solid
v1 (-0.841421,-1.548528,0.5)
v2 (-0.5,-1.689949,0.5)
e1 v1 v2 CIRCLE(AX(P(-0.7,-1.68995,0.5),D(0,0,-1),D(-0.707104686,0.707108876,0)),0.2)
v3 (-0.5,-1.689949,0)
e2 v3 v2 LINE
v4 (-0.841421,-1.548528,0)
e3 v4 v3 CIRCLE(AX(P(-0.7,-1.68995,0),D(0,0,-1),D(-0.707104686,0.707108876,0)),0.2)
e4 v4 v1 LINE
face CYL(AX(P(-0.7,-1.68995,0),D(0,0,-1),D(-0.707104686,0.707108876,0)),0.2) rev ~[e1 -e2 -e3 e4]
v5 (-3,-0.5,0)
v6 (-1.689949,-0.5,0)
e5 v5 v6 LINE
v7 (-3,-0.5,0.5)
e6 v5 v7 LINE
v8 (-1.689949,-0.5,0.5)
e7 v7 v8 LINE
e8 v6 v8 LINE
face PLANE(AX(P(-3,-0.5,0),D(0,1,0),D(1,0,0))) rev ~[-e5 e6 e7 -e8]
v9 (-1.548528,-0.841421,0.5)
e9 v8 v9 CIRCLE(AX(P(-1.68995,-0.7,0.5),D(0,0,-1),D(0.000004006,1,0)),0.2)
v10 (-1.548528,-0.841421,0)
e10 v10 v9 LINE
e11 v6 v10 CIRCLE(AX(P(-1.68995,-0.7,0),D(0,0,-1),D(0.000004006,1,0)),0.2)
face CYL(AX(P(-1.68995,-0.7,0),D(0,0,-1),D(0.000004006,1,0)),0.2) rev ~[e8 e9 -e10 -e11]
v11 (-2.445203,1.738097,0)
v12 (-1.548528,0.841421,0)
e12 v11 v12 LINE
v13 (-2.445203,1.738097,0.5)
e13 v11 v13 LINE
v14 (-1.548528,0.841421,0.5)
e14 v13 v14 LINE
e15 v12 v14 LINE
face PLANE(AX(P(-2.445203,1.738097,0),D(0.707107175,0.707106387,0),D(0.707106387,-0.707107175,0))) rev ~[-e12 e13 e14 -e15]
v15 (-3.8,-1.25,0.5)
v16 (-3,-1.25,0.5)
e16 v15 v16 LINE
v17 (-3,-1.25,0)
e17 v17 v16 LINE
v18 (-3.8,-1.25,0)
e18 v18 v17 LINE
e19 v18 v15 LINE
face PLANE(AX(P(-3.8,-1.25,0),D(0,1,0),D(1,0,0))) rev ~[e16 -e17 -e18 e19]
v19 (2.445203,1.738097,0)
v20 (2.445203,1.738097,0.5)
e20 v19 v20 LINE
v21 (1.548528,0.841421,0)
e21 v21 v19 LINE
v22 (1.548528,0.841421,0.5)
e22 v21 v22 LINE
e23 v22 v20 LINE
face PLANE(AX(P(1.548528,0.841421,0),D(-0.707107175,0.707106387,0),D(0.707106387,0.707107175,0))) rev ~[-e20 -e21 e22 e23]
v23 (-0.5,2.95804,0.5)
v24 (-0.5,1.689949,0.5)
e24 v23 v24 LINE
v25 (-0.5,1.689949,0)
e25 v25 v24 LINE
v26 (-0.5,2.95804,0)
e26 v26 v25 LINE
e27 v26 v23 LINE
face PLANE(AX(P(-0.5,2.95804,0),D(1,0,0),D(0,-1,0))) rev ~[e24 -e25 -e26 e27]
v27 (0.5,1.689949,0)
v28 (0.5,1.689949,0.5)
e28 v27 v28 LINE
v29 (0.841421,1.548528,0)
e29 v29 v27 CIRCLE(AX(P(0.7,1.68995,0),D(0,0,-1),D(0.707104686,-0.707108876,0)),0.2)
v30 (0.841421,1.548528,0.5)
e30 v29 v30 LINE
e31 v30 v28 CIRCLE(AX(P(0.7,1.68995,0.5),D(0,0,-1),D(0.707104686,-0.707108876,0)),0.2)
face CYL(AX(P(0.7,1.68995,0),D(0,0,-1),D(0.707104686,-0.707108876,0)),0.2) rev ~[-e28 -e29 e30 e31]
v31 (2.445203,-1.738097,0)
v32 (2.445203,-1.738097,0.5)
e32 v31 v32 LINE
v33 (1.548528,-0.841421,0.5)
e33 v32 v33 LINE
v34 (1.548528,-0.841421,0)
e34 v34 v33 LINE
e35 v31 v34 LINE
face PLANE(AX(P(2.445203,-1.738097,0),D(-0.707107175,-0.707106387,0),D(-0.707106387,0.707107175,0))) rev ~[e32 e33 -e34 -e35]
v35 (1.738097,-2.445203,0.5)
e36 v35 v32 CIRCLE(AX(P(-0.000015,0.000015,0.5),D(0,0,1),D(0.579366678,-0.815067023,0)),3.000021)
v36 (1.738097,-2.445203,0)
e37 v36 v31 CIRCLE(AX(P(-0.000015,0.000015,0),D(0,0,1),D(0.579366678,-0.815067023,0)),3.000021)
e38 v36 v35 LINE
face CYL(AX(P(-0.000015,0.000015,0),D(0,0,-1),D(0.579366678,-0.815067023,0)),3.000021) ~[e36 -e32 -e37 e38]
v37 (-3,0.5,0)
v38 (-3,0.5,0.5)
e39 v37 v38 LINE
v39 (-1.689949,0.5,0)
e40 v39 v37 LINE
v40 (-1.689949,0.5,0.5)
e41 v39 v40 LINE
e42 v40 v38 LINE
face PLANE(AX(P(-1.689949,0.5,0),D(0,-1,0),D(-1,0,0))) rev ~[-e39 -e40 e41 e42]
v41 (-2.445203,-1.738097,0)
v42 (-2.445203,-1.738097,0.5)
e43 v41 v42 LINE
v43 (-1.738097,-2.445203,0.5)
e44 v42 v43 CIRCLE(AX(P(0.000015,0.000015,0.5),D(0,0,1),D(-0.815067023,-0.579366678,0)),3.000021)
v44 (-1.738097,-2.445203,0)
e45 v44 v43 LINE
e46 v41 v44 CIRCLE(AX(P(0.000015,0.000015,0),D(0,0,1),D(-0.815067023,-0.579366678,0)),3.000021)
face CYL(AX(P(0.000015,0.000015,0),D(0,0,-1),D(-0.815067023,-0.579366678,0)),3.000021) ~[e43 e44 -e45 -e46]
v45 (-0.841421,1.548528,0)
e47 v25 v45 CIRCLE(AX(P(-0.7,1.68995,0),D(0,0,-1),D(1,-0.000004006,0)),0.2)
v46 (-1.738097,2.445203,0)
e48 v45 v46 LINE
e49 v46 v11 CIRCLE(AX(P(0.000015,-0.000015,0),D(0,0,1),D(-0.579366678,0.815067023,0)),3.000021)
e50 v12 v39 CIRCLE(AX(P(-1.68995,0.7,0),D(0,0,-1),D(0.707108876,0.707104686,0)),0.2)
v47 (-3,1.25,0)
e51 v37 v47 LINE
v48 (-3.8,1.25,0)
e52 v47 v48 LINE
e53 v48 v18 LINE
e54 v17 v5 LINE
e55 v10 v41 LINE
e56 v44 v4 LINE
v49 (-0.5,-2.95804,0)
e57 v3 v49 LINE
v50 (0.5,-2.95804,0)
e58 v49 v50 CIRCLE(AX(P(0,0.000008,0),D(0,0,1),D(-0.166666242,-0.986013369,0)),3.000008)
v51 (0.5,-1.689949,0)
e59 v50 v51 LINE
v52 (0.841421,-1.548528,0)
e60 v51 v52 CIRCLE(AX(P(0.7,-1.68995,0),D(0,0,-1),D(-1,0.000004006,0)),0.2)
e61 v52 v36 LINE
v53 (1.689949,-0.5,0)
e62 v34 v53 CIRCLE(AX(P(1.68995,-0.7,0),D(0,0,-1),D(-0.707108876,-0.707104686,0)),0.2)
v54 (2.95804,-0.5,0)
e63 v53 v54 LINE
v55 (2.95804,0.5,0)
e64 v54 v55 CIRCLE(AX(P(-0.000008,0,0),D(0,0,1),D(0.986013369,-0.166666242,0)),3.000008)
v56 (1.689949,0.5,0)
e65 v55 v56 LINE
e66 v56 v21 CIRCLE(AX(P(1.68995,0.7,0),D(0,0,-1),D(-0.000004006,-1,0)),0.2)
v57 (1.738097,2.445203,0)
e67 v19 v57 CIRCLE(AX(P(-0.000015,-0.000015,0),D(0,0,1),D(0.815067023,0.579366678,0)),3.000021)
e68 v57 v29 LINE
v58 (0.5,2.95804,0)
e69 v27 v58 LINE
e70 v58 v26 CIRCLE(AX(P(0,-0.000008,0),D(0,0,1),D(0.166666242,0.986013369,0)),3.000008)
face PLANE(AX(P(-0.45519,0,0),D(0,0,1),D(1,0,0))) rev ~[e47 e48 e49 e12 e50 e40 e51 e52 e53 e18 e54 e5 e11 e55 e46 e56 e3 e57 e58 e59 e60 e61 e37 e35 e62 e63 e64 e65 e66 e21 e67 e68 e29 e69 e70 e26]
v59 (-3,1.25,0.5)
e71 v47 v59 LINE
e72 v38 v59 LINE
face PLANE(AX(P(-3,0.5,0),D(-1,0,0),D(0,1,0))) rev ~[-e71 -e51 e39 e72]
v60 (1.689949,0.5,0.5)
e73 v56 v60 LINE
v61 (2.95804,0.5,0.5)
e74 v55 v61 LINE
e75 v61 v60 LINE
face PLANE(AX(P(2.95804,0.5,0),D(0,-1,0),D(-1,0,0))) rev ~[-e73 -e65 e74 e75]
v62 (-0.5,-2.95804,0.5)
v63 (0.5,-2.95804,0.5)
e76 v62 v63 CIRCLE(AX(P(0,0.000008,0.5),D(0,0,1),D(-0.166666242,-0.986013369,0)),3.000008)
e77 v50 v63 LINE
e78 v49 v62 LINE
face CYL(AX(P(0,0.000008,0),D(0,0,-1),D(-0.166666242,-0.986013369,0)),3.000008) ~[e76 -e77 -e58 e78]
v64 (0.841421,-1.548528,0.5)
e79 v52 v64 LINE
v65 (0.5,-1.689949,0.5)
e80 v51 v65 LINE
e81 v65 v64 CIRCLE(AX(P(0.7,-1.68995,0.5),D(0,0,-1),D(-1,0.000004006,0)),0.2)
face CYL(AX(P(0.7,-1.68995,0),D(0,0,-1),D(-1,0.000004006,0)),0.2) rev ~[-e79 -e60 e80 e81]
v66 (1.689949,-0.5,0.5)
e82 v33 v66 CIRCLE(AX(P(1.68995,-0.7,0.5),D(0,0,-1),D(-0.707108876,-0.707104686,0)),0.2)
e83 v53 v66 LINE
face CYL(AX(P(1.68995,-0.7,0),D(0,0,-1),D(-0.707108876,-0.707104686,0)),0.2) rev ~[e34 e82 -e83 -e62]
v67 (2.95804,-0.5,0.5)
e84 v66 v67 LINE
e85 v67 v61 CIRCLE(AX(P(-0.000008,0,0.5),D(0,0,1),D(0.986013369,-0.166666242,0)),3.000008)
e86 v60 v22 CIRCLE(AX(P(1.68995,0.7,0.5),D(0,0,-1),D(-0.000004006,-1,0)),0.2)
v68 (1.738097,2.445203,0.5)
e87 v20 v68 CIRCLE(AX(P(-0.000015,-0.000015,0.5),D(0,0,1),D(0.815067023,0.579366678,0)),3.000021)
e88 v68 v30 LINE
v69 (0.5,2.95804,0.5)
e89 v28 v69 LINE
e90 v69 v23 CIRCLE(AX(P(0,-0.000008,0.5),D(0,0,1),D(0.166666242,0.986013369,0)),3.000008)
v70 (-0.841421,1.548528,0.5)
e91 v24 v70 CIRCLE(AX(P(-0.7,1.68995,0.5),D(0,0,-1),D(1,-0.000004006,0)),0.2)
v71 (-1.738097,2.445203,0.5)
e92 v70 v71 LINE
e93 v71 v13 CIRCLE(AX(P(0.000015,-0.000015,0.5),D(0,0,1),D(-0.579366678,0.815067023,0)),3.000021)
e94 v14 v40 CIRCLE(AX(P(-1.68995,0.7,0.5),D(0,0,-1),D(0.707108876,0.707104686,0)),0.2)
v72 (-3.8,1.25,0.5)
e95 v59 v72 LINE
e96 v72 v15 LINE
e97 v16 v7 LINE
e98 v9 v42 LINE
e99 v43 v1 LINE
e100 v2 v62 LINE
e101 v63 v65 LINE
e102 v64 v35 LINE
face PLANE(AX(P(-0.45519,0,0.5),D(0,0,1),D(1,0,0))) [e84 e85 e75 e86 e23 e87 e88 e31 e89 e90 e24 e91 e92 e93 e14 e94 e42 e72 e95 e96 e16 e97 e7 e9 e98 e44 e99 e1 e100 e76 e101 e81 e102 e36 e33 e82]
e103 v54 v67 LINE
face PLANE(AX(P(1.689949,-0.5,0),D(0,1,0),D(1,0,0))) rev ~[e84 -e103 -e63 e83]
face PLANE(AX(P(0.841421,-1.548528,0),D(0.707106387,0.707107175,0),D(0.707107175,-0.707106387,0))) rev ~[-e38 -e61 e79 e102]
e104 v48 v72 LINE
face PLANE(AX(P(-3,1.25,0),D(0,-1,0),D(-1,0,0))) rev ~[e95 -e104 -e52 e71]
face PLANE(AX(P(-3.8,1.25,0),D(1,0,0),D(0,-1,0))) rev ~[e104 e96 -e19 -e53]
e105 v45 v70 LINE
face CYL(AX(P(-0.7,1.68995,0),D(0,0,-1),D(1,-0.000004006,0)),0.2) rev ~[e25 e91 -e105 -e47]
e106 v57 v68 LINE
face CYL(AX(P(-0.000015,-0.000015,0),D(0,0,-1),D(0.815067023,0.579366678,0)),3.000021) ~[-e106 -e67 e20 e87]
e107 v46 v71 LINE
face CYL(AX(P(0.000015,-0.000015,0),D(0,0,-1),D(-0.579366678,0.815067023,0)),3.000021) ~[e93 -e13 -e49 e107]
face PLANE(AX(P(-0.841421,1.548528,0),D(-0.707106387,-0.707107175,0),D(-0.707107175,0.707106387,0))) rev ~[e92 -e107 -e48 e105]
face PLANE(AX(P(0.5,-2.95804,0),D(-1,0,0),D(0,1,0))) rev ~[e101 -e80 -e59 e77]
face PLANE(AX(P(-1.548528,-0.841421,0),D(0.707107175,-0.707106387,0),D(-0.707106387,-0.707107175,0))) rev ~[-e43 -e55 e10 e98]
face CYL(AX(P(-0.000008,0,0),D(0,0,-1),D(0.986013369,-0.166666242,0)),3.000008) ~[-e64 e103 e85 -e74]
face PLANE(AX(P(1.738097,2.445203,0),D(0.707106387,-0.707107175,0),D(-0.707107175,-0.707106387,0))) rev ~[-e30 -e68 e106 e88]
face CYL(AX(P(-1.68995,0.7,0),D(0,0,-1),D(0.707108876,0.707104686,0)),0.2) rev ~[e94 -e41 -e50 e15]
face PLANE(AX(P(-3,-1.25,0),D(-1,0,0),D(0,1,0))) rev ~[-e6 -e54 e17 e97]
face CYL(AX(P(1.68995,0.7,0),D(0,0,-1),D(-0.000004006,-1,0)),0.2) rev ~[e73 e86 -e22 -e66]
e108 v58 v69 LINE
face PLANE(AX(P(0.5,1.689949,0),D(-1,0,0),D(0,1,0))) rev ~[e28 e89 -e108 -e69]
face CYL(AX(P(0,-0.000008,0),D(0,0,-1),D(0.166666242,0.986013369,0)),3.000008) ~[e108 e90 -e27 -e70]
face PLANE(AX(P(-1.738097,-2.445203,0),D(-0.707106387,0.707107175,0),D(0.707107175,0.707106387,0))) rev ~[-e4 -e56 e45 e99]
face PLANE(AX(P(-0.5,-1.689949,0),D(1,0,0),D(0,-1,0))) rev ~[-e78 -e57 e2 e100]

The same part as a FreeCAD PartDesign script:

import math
import FreeCAD as App
import Part
import Sketcher

V = App.Vector

doc = App.newDocument("Part")
body = doc.addObject("PartDesign::Body", "Body")

# Sketch on XY plane
sketch1 = body.newObject("Sketcher::SketchObject", "Sketch")
sketch1.AttachmentSupport = (doc.getObject("XY_Plane"), [""])
sketch1.MapMode = "FlatFace"
sketch1.addGeometry([
    Part.LineSegment(V(0.5, 1.689949, 0), V(0.5, 2.95804, 0)),  # 0
    Part.ArcOfCircle(Part.Circle(V(0, -0.000008, 0), V(0, 0, 1), 3.000008), math.radians(80.405956), math.radians(99.594044)),  # 1
    Part.LineSegment(V(-0.5, 2.95804, 0), V(-0.5, 1.689949, 0)),  # 2
    Part.ArcOfCircle(Part.Circle(V(-0.7, 1.68995, 0), V(0, 0, 1), 0.2), math.radians(-134.99983), math.radians(-0.000229)),  # 3
    Part.LineSegment(V(-0.841421, 1.548528, 0), V(-1.738097, 2.445203, 0)),  # 4
    Part.ArcOfCircle(Part.Circle(V(0.000015, -0.000015, 0), V(0, 0, 1), 3.000021), math.radians(125.40601), math.radians(144.59399)),  # 5
    Part.LineSegment(V(-2.445203, 1.738097, 0), V(-1.548528, 0.841421, 0)),  # 6
    Part.ArcOfCircle(Part.Circle(V(-1.68995, 0.7, 0), V(0, 0, 1), 0.2), math.radians(-89.999771), math.radians(44.99983)),  # 7
    Part.LineSegment(V(-1.689949, 0.5, 0), V(-3, 0.5, 0)),  # 8
    Part.LineSegment(V(-3, 0.5, 0), V(-3, 1.25, 0)),  # 9
    Part.LineSegment(V(-3, 1.25, 0), V(-3.8, 1.25, 0)),  # 10
    Part.LineSegment(V(-3.8, 1.25, 0), V(-3.8, -1.25, 0)),  # 11
    Part.LineSegment(V(-3.8, -1.25, 0), V(-3, -1.25, 0)),  # 12
    Part.LineSegment(V(-3, -1.25, 0), V(-3, -0.5, 0)),  # 13
    Part.LineSegment(V(-3, -0.5, 0), V(-1.689949, -0.5, 0)),  # 14
    Part.ArcOfCircle(Part.Circle(V(-1.68995, -0.7, 0), V(0, 0, 1), 0.2), math.radians(-44.99983), math.radians(89.999771)),  # 15
    Part.LineSegment(V(-1.548528, -0.841421, 0), V(-2.445203, -1.738097, 0)),  # 16
    Part.ArcOfCircle(Part.Circle(V(0.000015, 0.000015, 0), V(0, 0, 1), 3.000021), math.radians(-144.59399), math.radians(-125.40601)),  # 17
    Part.LineSegment(V(-1.738097, -2.445203, 0), V(-0.841421, -1.548528, 0)),  # 18
    Part.ArcOfCircle(Part.Circle(V(-0.7, -1.68995, 0), V(0, 0, 1), 0.2), math.radians(0.000229), math.radians(134.99983)),  # 19
    Part.LineSegment(V(-0.5, -1.689949, 0), V(-0.5, -2.95804, 0)),  # 20
    Part.ArcOfCircle(Part.Circle(V(0, 0.000008, 0), V(0, 0, 1), 3.000008), math.radians(-99.594044), math.radians(-80.405956)),  # 21
    Part.LineSegment(V(0.5, -2.95804, 0), V(0.5, -1.689949, 0)),  # 22
    Part.ArcOfCircle(Part.Circle(V(0.7, -1.68995, 0), V(0, 0, 1), 0.2), math.radians(45.00017), math.radians(179.999771)),  # 23
    Part.LineSegment(V(0.841421, -1.548528, 0), V(1.738097, -2.445203, 0)),  # 24
    Part.ArcOfCircle(Part.Circle(V(-0.000015, 0.000015, 0), V(0, 0, 1), 3.000021), math.radians(-54.59399), math.radians(-35.40601)),  # 25
    Part.LineSegment(V(2.445203, -1.738097, 0), V(1.548528, -0.841421, 0)),  # 26
    Part.ArcOfCircle(Part.Circle(V(1.68995, -0.7, 0), V(0, 0, 1), 0.2), math.radians(90.000229), math.radians(224.99983)),  # 27
    Part.LineSegment(V(1.689949, -0.5, 0), V(2.95804, -0.5, 0)),  # 28
    Part.ArcOfCircle(Part.Circle(V(-0.000008, 0, 0), V(0, 0, 1), 3.000008), math.radians(-9.594044), math.radians(9.594044)),  # 29
    Part.LineSegment(V(2.95804, 0.5, 0), V(1.689949, 0.5, 0)),  # 30
    Part.ArcOfCircle(Part.Circle(V(1.68995, 0.7, 0), V(0, 0, 1), 0.2), math.radians(135.00017), math.radians(269.999771)),  # 31
    Part.LineSegment(V(1.548528, 0.841421, 0), V(2.445203, 1.738097, 0)),  # 32
    Part.ArcOfCircle(Part.Circle(V(-0.000015, -0.000015, 0), V(0, 0, 1), 3.000021), math.radians(35.40601), math.radians(54.59399)),  # 33
    Part.LineSegment(V(1.738097, 2.445203, 0), V(0.841421, 1.548528, 0)),  # 34
    Part.ArcOfCircle(Part.Circle(V(0.7, 1.68995, 0), V(0, 0, 1), 0.2), math.radians(-179.999771), math.radians(-45.00017)),  # 35
], False)
sketch1.addConstraint([
    Sketcher.Constraint("Coincident", 0, 2, 1, 1),
    Sketcher.Constraint("Coincident", 1, 2, 2, 1),
    Sketcher.Constraint("Coincident", 2, 2, 3, 2),
    Sketcher.Constraint("Coincident", 3, 1, 4, 1),
    Sketcher.Constraint("Coincident", 4, 2, 5, 1),
    Sketcher.Constraint("Coincident", 5, 2, 6, 1),
    Sketcher.Constraint("Coincident", 6, 2, 7, 2),
    Sketcher.Constraint("Coincident", 7, 1, 8, 1),
    Sketcher.Constraint("Coincident", 8, 2, 9, 1),
    Sketcher.Constraint("Coincident", 9, 2, 10, 1),
    Sketcher.Constraint("Coincident", 10, 2, 11, 1),
    Sketcher.Constraint("Coincident", 11, 2, 12, 1),
    Sketcher.Constraint("Coincident", 12, 2, 13, 1),
    Sketcher.Constraint("Coincident", 13, 2, 14, 1),
    Sketcher.Constraint("Coincident", 14, 2, 15, 2),
    Sketcher.Constraint("Coincident", 15, 1, 16, 1),
    Sketcher.Constraint("Coincident", 16, 2, 17, 1),
    Sketcher.Constraint("Coincident", 17, 2, 18, 1),
    Sketcher.Constraint("Coincident", 18, 2, 19, 2),
    Sketcher.Constraint("Coincident", 19, 1, 20, 1),
    Sketcher.Constraint("Coincident", 20, 2, 21, 1),
    Sketcher.Constraint("Coincident", 21, 2, 22, 1),
    Sketcher.Constraint("Coincident", 22, 2, 23, 2),
    Sketcher.Constraint("Coincident", 23, 1, 24, 1),
    Sketcher.Constraint("Coincident", 24, 2, 25, 1),
    Sketcher.Constraint("Coincident", 25, 2, 26, 1),
    Sketcher.Constraint("Coincident", 26, 2, 27, 2),
    Sketcher.Constraint("Coincident", 27, 1, 28, 1),
    Sketcher.Constraint("Coincident", 28, 2, 29, 1),
    Sketcher.Constraint("Coincident", 29, 2, 30, 1),
    Sketcher.Constraint("Coincident", 30, 2, 31, 2),
    Sketcher.Constraint("Coincident", 31, 1, 32, 1),
    Sketcher.Constraint("Coincident", 32, 2, 33, 1),
    Sketcher.Constraint("Coincident", 33, 2, 34, 1),
    Sketcher.Constraint("Coincident", 34, 2, 35, 2),
    Sketcher.Constraint("Coincident", 35, 1, 0, 1),
    Sketcher.Constraint("Vertical", 0),
    Sketcher.Constraint("Vertical", 2),
    Sketcher.Constraint("Horizontal", 8),
    Sketcher.Constraint("Vertical", 9),
    Sketcher.Constraint("Horizontal", 10),
    Sketcher.Constraint("Vertical", 11),
    Sketcher.Constraint("Horizontal", 12),
    Sketcher.Constraint("Vertical", 13),
    Sketcher.Constraint("Horizontal", 14),
    Sketcher.Constraint("Vertical", 20),
    Sketcher.Constraint("Vertical", 22),
    Sketcher.Constraint("Horizontal", 28),
    Sketcher.Constraint("Horizontal", 30),
    Sketcher.Constraint("Coincident", 1, 3, -1, 1),
    Sketcher.Constraint("Coincident", 21, 3, -1, 1),
    Sketcher.Constraint("Coincident", 29, 3, -1, 1),
    Sketcher.Constraint("Equal", 3, 7),
    Sketcher.Constraint("Equal", 7, 15),
    Sketcher.Constraint("Equal", 5, 17),
    Sketcher.Constraint("Equal", 15, 19),
    Sketcher.Constraint("Equal", 1, 21),
    Sketcher.Constraint("Equal", 19, 23),
    Sketcher.Constraint("Equal", 17, 25),
    Sketcher.Constraint("Equal", 23, 27),
    Sketcher.Constraint("Equal", 21, 29),
    Sketcher.Constraint("Equal", 27, 31),
    Sketcher.Constraint("Equal", 25, 33),
    Sketcher.Constraint("Equal", 31, 35),
    Sketcher.Constraint("Symmetric", 3, 3, 23, 3, -1, 1),
    Sketcher.Constraint("Symmetric", 5, 3, 25, 3, -1, 1),
    Sketcher.Constraint("Symmetric", 7, 3, 27, 3, -1, 1),
    Sketcher.Constraint("Symmetric", 15, 3, 31, 3, -1, 1),
    Sketcher.Constraint("Symmetric", 17, 3, 33, 3, -1, 1),
    Sketcher.Constraint("Symmetric", 19, 3, 35, 3, -1, 1),
    Sketcher.Constraint("Symmetric", 19, 3, 23, 3, -2),
    Sketcher.Constraint("Symmetric", 17, 3, 25, 3, -2),
    Sketcher.Constraint("Symmetric", 15, 3, 27, 3, -2),
    Sketcher.Constraint("Symmetric", 9, 2, 12, 2, -1),
    Sketcher.Constraint("Parallel", 4, 6),
    Sketcher.Constraint("Perpendicular", 6, 16),
    Sketcher.Constraint("Parallel", 16, 18),
    Sketcher.Constraint("Perpendicular", 18, 24),
    Sketcher.Constraint("Parallel", 24, 26),
    Sketcher.Constraint("Perpendicular", 26, 32),
    Sketcher.Constraint("Parallel", 32, 34),
    Sketcher.Constraint("Horizontal", 35, 3, 2, 2),
    Sketcher.Constraint("Horizontal", 23, 3, 19, 1),
    Sketcher.Constraint("Horizontal", 19, 1, 22, 2),
    Sketcher.Constraint("Horizontal", 18, 2, 23, 1),
    Sketcher.Constraint("Horizontal", 17, 2, 24, 2),
    Sketcher.Constraint("Horizontal", 15, 1, 26, 2),
    Sketcher.Constraint("Horizontal", 6, 2, 31, 1),
    Sketcher.Constraint("Horizontal", 3, 1, 34, 2),
    Sketcher.Constraint("Horizontal", 2, 2, 35, 1),
    Sketcher.Constraint("Vertical", 15, 3, 7, 1),
    Sketcher.Constraint("Vertical", 7, 1, 14, 2),
    Sketcher.Constraint("Vertical", 6, 2, 15, 1),
    Sketcher.Constraint("Vertical", 3, 1, 18, 2),
    Sketcher.Constraint("Vertical", 31, 3, 27, 1),
    Sketcher.Constraint("Vertical", 27, 1, 30, 2),
    Sketcher.Constraint("Equal", 30, 0),
    Sketcher.Constraint("Equal", 4, 6),
    Sketcher.Constraint("Radius", 3, 0.2),
    Sketcher.Constraint("DistanceX", 10, 2, 10, 1, 0.8),
    Sketcher.Constraint("DistanceY", 11, 2, 11, 1, 2.5),
    Sketcher.Constraint("DistanceX", 8, 2, -1, 1, 3.0),
    Sketcher.Constraint("DistanceX", 1, 2, 0, 2, 1.0),
    Sketcher.Constraint("DistanceY", 13, 2, 8, 2, 1.0),
    Sketcher.Constraint("Radius", 5, 3.000021),
    Sketcher.Constraint("Radius", 1, 3.000008),
    Sketcher.Constraint("DistanceX", 8, 2, 8, 1, 1.310051),
    Sketcher.Constraint("Distance", 4, 1.268091),
    Sketcher.Constraint("DistanceX", 3, 1, -1, 1, 0.841421),
    Sketcher.Constraint("DistanceY", -1, 1, 6, 2, 0.841421),
])
pad1 = body.newObject("PartDesign::Pad", "Pad")
pad1.Profile = sketch1
pad1.Length = 0.5

doc.recompute()
